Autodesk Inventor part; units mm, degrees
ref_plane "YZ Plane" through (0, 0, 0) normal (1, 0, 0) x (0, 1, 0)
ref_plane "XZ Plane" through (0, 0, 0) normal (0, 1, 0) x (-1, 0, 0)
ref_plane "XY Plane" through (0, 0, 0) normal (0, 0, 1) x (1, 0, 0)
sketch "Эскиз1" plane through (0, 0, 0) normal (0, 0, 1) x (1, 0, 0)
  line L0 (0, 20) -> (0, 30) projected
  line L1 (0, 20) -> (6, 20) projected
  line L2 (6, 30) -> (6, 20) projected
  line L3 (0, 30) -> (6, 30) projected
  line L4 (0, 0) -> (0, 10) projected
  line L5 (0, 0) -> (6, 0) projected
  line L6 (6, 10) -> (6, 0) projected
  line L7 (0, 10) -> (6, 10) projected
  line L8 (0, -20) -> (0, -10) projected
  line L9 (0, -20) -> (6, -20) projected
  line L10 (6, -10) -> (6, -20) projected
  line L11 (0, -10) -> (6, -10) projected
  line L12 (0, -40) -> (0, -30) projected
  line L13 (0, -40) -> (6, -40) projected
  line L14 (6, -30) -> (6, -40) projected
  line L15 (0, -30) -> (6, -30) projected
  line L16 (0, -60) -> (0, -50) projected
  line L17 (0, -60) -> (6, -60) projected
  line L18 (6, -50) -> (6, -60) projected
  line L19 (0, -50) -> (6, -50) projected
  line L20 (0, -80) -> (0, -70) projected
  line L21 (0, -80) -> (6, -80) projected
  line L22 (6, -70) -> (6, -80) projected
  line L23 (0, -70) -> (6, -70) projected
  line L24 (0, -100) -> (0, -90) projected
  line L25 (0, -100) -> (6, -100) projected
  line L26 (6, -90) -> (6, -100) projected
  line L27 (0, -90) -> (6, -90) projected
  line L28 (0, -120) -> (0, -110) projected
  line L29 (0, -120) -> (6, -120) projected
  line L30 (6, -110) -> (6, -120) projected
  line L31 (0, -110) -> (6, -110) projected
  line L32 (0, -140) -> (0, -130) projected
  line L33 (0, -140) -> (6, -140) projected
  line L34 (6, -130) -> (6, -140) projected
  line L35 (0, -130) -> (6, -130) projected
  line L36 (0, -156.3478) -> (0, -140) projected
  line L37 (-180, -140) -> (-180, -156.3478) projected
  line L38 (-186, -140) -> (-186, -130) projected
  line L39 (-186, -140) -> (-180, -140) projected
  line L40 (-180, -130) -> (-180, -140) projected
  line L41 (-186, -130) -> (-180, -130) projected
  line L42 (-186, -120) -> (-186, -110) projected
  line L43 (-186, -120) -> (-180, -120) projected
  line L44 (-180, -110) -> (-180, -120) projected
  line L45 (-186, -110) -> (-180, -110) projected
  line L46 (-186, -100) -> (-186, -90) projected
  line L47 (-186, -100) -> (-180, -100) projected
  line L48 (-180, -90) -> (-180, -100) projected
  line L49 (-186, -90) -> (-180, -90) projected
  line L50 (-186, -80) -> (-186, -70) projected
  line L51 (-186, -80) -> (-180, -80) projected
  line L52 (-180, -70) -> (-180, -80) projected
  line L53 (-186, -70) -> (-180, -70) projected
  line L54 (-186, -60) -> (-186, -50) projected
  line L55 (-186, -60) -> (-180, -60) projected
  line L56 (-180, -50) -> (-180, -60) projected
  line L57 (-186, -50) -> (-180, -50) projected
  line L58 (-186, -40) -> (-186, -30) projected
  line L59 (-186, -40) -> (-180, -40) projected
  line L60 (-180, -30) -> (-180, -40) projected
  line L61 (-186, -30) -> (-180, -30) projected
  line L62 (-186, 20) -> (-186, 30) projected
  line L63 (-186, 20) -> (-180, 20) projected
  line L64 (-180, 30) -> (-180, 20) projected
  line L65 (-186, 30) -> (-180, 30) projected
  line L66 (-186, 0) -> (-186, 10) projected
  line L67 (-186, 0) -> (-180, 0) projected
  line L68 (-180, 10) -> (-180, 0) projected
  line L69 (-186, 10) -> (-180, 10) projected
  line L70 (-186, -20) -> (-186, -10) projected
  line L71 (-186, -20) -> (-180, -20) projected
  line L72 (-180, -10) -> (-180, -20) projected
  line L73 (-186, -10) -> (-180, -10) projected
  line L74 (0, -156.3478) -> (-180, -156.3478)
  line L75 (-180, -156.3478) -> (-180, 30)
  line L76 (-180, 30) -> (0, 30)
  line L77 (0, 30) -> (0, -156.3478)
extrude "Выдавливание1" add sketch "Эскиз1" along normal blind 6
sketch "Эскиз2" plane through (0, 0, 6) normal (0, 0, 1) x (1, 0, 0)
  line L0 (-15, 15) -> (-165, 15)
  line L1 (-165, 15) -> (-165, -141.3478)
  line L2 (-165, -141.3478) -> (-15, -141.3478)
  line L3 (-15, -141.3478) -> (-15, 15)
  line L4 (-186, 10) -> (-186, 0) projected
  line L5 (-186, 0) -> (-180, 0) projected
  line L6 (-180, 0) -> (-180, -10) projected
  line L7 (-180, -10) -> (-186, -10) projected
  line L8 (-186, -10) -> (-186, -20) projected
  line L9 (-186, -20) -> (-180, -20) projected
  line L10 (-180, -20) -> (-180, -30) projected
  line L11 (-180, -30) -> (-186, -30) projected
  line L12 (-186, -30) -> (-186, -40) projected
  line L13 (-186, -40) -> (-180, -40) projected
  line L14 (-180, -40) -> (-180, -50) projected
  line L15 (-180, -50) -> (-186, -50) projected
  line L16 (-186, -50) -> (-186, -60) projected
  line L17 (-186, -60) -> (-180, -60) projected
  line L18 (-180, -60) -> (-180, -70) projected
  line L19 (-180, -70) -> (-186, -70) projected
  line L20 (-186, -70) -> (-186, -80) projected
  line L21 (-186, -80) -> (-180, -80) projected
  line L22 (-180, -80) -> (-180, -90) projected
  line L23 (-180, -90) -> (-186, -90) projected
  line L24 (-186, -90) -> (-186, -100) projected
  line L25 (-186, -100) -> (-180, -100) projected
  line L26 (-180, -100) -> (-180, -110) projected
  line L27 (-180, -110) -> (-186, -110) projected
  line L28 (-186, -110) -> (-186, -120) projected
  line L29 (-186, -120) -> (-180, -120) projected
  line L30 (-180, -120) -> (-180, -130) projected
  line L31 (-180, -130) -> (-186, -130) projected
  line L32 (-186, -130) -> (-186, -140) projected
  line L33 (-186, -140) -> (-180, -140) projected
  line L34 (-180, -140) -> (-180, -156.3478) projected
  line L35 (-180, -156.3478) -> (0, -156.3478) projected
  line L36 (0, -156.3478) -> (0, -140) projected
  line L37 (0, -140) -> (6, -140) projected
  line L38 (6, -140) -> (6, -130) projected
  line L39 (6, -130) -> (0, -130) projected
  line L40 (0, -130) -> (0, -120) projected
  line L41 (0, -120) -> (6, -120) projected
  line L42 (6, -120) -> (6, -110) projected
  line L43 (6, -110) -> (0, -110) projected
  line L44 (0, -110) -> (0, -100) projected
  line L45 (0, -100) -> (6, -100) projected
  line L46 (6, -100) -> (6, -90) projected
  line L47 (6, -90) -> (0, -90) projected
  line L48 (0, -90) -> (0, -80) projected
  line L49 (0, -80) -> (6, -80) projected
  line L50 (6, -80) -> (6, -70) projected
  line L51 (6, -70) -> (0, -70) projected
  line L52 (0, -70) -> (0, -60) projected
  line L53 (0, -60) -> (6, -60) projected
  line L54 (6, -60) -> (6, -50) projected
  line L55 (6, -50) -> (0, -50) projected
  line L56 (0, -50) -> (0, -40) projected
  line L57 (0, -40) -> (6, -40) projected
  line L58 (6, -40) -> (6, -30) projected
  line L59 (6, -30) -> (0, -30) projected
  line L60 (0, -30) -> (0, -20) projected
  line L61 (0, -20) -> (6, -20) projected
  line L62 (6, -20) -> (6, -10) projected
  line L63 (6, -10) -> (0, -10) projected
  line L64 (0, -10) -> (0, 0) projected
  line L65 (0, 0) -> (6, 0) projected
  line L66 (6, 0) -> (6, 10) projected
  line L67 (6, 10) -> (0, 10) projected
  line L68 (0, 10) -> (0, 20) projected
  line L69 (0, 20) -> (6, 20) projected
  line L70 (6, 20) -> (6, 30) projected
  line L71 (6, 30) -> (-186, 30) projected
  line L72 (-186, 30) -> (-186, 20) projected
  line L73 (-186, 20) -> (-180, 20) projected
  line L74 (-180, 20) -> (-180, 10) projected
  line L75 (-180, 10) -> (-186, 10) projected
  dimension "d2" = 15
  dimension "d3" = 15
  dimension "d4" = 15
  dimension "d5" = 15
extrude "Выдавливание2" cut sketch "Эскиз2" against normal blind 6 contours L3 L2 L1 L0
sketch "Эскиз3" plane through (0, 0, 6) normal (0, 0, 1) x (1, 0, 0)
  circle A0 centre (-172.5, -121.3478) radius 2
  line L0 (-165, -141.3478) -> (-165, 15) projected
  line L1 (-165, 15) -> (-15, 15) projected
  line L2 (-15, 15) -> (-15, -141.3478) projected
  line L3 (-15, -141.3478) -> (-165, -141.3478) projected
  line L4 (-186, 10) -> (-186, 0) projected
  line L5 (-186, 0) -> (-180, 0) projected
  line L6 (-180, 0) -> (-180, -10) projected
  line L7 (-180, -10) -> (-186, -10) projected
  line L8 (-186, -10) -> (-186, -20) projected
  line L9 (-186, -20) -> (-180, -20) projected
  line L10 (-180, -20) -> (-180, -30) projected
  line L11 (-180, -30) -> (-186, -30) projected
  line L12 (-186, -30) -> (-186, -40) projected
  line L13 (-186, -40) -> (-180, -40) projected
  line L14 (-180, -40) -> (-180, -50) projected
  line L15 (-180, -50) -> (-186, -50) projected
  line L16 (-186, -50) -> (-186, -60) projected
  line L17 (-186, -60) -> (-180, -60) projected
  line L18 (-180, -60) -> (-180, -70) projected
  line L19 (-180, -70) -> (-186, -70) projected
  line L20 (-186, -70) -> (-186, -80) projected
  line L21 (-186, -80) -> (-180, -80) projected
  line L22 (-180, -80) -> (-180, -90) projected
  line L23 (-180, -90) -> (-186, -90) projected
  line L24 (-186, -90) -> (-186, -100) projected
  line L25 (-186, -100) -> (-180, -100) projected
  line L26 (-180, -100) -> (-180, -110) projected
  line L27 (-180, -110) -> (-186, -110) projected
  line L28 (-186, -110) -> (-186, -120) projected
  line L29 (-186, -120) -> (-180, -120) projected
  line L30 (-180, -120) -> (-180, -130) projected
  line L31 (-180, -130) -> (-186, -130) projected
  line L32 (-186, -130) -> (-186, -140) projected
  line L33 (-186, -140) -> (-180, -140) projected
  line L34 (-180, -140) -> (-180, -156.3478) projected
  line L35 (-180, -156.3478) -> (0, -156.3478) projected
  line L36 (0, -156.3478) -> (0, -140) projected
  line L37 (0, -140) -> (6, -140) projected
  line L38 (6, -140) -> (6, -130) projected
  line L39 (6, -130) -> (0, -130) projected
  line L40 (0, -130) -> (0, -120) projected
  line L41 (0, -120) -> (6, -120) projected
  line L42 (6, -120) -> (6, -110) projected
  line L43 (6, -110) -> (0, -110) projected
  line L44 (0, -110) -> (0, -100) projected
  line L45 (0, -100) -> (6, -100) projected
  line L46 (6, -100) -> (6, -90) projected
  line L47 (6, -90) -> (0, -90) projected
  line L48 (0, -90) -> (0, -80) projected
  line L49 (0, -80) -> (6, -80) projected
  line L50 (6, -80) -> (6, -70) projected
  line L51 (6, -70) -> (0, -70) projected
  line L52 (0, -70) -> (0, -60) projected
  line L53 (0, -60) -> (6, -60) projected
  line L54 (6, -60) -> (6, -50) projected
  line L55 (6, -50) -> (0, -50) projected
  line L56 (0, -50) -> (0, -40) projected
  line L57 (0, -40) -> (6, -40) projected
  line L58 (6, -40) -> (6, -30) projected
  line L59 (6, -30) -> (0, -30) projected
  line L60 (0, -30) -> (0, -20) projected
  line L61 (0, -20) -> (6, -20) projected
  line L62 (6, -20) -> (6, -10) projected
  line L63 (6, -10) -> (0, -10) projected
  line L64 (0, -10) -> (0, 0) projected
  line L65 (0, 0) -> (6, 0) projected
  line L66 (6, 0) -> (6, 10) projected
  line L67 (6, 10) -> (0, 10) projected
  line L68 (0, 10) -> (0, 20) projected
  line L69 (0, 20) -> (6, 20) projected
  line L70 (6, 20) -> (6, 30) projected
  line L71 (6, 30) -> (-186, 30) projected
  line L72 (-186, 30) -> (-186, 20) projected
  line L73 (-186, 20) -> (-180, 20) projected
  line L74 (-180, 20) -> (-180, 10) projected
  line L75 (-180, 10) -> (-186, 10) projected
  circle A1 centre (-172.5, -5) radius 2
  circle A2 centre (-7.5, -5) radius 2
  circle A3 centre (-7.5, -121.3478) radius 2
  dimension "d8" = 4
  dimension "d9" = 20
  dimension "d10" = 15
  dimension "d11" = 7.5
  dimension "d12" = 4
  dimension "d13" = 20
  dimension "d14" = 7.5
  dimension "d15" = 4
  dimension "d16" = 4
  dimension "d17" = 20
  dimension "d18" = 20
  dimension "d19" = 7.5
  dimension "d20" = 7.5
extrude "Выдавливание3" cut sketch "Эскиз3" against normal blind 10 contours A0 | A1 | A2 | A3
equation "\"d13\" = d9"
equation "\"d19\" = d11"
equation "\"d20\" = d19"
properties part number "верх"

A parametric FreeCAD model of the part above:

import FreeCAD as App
import Part
import Sketcher
from FreeCAD import Vector

doc = App.newDocument("Part")
body = doc.addObject("PartDesign::Body", "Body")

# Sketch on XY plane
sketch1 = body.newObject("Sketcher::SketchObject", "Sketch")
sketch1.AttachmentSupport = (doc.getObject("XY_Plane"), [""])
sketch1.MapMode = "FlatFace"
sketch1.addGeometry(Part.LineSegment(Vector(0, 10, 0), Vector(0, 20, 0)), False)
sketch1.addGeometry(Part.LineSegment(Vector(0, 20, 0), Vector(6, 20, 0)), False)
sketch1.addGeometry(Part.LineSegment(Vector(6, 20, 0), Vector(6, 30, 0)), False)
sketch1.addGeometry(Part.LineSegment(Vector(6, 30, 0), Vector(-186, 30, 0)), False)
sketch1.addGeometry(Part.LineSegment(Vector(-186, 30, 0), Vector(-186, 20, 0)), False)
sketch1.addGeometry(Part.LineSegment(Vector(-186, 20, 0), Vector(-180, 20, 0)), False)
sketch1.addGeometry(Part.LineSegment(Vector(-180, 20, 0), Vector(-180, 10, 0)), False)
sketch1.addGeometry(Part.LineSegment(Vector(-180, 10, 0), Vector(-186, 10, 0)), False)
sketch1.addGeometry(Part.LineSegment(Vector(-186, 10, 0), Vector(-186, 0, 0)), False)
sketch1.addGeometry(Part.LineSegment(Vector(-186, 0, 0), Vector(-180, 0, 0)), False)
sketch1.addGeometry(Part.LineSegment(Vector(-180, 0, 0), Vector(-180, -10, 0)), False)
sketch1.addGeometry(Part.LineSegment(Vector(-180, -10, 0), Vector(-186, -10, 0)), False)
sketch1.addGeometry(Part.LineSegment(Vector(-186, -10, 0), Vector(-186, -20, 0)), False)
sketch1.addGeometry(Part.LineSegment(Vector(-186, -20, 0), Vector(-180, -20, 0)), False)
sketch1.addGeometry(Part.LineSegment(Vector(-180, -20, 0), Vector(-180, -30, 0)), False)
sketch1.addGeometry(Part.LineSegment(Vector(-180, -30, 0), Vector(-186, -30, 0)), False)
sketch1.addGeometry(Part.LineSegment(Vector(-186, -30, 0), Vector(-186, -40, 0)), False)
sketch1.addGeometry(Part.LineSegment(Vector(-186, -40, 0), Vector(-180, -40, 0)), False)
sketch1.addGeometry(Part.LineSegment(Vector(-180, -40, 0), Vector(-180, -50, 0)), False)
sketch1.addGeometry(Part.LineSegment(Vector(-180, -50, 0), Vector(-186, -50, 0)), False)
sketch1.addGeometry(Part.LineSegment(Vector(-186, -50, 0), Vector(-186, -60, 0)), False)
sketch1.addGeometry(Part.LineSegment(Vector(-186, -60, 0), Vector(-180, -60, 0)), False)
sketch1.addGeometry(Part.LineSegment(Vector(-180, -60, 0), Vector(-180, -70, 0)), False)
sketch1.addGeometry(Part.LineSegment(Vector(-180, -70, 0), Vector(-186, -70, 0)), False)
sketch1.addGeometry(Part.LineSegment(Vector(-186, -70, 0), Vector(-186, -80, 0)), False)
sketch1.addGeometry(Part.LineSegment(Vector(-186, -80, 0), Vector(-180, -80, 0)), False)
sketch1.addGeometry(Part.LineSegment(Vector(-180, -80, 0), Vector(-180, -90, 0)), False)
sketch1.addGeometry(Part.LineSegment(Vector(-180, -90, 0), Vector(-186, -90, 0)), False)
sketch1.addGeometry(Part.LineSegment(Vector(-186, -90, 0), Vector(-186, -100, 0)), False)
sketch1.addGeometry(Part.LineSegment(Vector(-186, -100, 0), Vector(-180, -100, 0)), False)
sketch1.addGeometry(Part.LineSegment(Vector(-180, -100, 0), Vector(-180, -110, 0)), False)
sketch1.addGeometry(Part.LineSegment(Vector(-180, -110, 0), Vector(-186, -110, 0)), False)
sketch1.addGeometry(Part.LineSegment(Vector(-186, -110, 0), Vector(-186, -120, 0)), False)
sketch1.addGeometry(Part.LineSegment(Vector(-186, -120, 0), Vector(-180, -120, 0)), False)
sketch1.addGeometry(Part.LineSegment(Vector(-180, -120, 0), Vector(-180, -130, 0)), False)
sketch1.addGeometry(Part.LineSegment(Vector(-180, -130, 0), Vector(-186, -130, 0)), False)
sketch1.addGeometry(Part.LineSegment(Vector(-186, -130, 0), Vector(-186, -140, 0)), False)
sketch1.addGeometry(Part.LineSegment(Vector(-186, -140, 0), Vector(-180, -140, 0)), False)
sketch1.addGeometry(Part.LineSegment(Vector(-180, -140, 0), Vector(-180, -156.3478, 0)), False)
sketch1.addGeometry(Part.LineSegment(Vector(-180, -156.3478, 0), Vector(0, -156.3478, 0)), False)
sketch1.addGeometry(Part.LineSegment(Vector(0, -156.3478, 0), Vector(0, -140, 0)), False)
sketch1.addGeometry(Part.LineSegment(Vector(0, -140, 0), Vector(6, -140, 0)), False)
sketch1.addGeometry(Part.LineSegment(Vector(6, -140, 0), Vector(6, -130, 0)), False)
sketch1.addGeometry(Part.LineSegment(Vector(6, -130, 0), Vector(0, -130, 0)), False)
sketch1.addGeometry(Part.LineSegment(Vector(0, -130, 0), Vector(0, -120, 0)), False)
sketch1.addGeometry(Part.LineSegment(Vector(0, -120, 0), Vector(6, -120, 0)), False)
sketch1.addGeometry(Part.LineSegment(Vector(6, -120, 0), Vector(6, -110, 0)), False)
sketch1.addGeometry(Part.LineSegment(Vector(6, -110, 0), Vector(0, -110, 0)), False)
sketch1.addGeometry(Part.LineSegment(Vector(0, -110, 0), Vector(0, -100, 0)), False)
sketch1.addGeometry(Part.LineSegment(Vector(0, -100, 0), Vector(6, -100, 0)), False)
sketch1.addGeometry(Part.LineSegment(Vector(6, -100, 0), Vector(6, -90, 0)), False)
sketch1.addGeometry(Part.LineSegment(Vector(6, -90, 0), Vector(0, -90, 0)), False)
sketch1.addGeometry(Part.LineSegment(Vector(0, -90, 0), Vector(0, -80, 0)), False)
sketch1.addGeometry(Part.LineSegment(Vector(0, -80, 0), Vector(6, -80, 0)), False)
sketch1.addGeometry(Part.LineSegment(Vector(6, -80, 0), Vector(6, -70, 0)), False)
sketch1.addGeometry(Part.LineSegment(Vector(6, -70, 0), Vector(0, -70, 0)), False)
sketch1.addGeometry(Part.LineSegment(Vector(0, -70, 0), Vector(0, -60, 0)), False)
sketch1.addGeometry(Part.LineSegment(Vector(0, -60, 0), Vector(6, -60, 0)), False)
sketch1.addGeometry(Part.LineSegment(Vector(6, -60, 0), Vector(6, -50, 0)), False)
sketch1.addGeometry(Part.LineSegment(Vector(6, -50, 0), Vector(0, -50, 0)), False)
sketch1.addGeometry(Part.LineSegment(Vector(0, -50, 0), Vector(0, -40, 0)), False)
sketch1.addGeometry(Part.LineSegment(Vector(0, -40, 0), Vector(6, -40, 0)), False)
sketch1.addGeometry(Part.LineSegment(Vector(6, -40, 0), Vector(6, -30, 0)), False)
sketch1.addGeometry(Part.LineSegment(Vector(6, -30, 0), Vector(0, -30, 0)), False)
sketch1.addGeometry(Part.LineSegment(Vector(0, -30, 0), Vector(0, -20, 0)), False)
sketch1.addGeometry(Part.LineSegment(Vector(0, -20, 0), Vector(6, -20, 0)), False)
sketch1.addGeometry(Part.LineSegment(Vector(6, -20, 0), Vector(6, -10, 0)), False)
sketch1.addGeometry(Part.LineSegment(Vector(6, -10, 0), Vector(0, -10, 0)), False)
sketch1.addGeometry(Part.LineSegment(Vector(0, -10, 0), Vector(0, 0, 0)), False)
sketch1.addGeometry(Part.LineSegment(Vector(0, 0, 0), Vector(6, 0, 0)), False)
sketch1.addGeometry(Part.LineSegment(Vector(6, 0, 0), Vector(6, 10, 0)), False)
sketch1.addGeometry(Part.LineSegment(Vector(6, 10, 0), Vector(0, 10, 0)), False)
sketch1.addConstraint(Sketcher.Constraint("Coincident", 0, 2, 1, 1))
sketch1.addConstraint(Sketcher.Constraint("Coincident", 1, 2, 2, 1))
sketch1.addConstraint(Sketcher.Constraint("Coincident", 2, 2, 3, 1))
sketch1.addConstraint(Sketcher.Constraint("Coincident", 3, 2, 4, 1))
sketch1.addConstraint(Sketcher.Constraint("Coincident", 4, 2, 5, 1))
sketch1.addConstraint(Sketcher.Constraint("Coincident", 5, 2, 6, 1))
sketch1.addConstraint(Sketcher.Constraint("Coincident", 6, 2, 7, 1))
sketch1.addConstraint(Sketcher.Constraint("Coincident", 7, 2, 8, 1))
sketch1.addConstraint(Sketcher.Constraint("Coincident", 8, 2, 9, 1))
sketch1.addConstraint(Sketcher.Constraint("Coincident", 9, 2, 10, 1))
sketch1.addConstraint(Sketcher.Constraint("Coincident", 10, 2, 11, 1))
sketch1.addConstraint(Sketcher.Constraint("Coincident", 11, 2, 12, 1))
sketch1.addConstraint(Sketcher.Constraint("Coincident", 12, 2, 13, 1))
sketch1.addConstraint(Sketcher.Constraint("Coincident", 13, 2, 14, 1))
sketch1.addConstraint(Sketcher.Constraint("Coincident", 14, 2, 15, 1))
sketch1.addConstraint(Sketcher.Constraint("Coincident", 15, 2, 16, 1))
sketch1.addConstraint(Sketcher.Constraint("Coincident", 16, 2, 17, 1))
sketch1.addConstraint(Sketcher.Constraint("Coincident", 17, 2, 18, 1))
sketch1.addConstraint(Sketcher.Constraint("Coincident", 18, 2, 19, 1))
sketch1.addConstraint(Sketcher.Constraint("Coincident", 19, 2, 20, 1))
sketch1.addConstraint(Sketcher.Constraint("Coincident", 20, 2, 21, 1))
sketch1.addConstraint(Sketcher.Constraint("Coincident", 21, 2, 22, 1))
sketch1.addConstraint(Sketcher.Constraint("Coincident", 22, 2, 23, 1))
sketch1.addConstraint(Sketcher.Constraint("Coincident", 23, 2, 24, 1))
sketch1.addConstraint(Sketcher.Constraint("Coincident", 24, 2, 25, 1))
sketch1.addConstraint(Sketcher.Constraint("Coincident", 25, 2, 26, 1))
sketch1.addConstraint(Sketcher.Constraint("Coincident", 26, 2, 27, 1))
sketch1.addConstraint(Sketcher.Constraint("Coincident", 27, 2, 28, 1))
sketch1.addConstraint(Sketcher.Constraint("Coincident", 28, 2, 29, 1))
sketch1.addConstraint(Sketcher.Constraint("Coincident", 29, 2, 30, 1))
sketch1.addConstraint(Sketcher.Constraint("Coincident", 30, 2, 31, 1))
sketch1.addConstraint(Sketcher.Constraint("Coincident", 31, 2, 32, 1))
sketch1.addConstraint(Sketcher.Constraint("Coincident", 32, 2, 33, 1))
sketch1.addConstraint(Sketcher.Constraint("Coincident", 33, 2, 34, 1))
sketch1.addConstraint(Sketcher.Constraint("Coincident", 34, 2, 35, 1))
sketch1.addConstraint(Sketcher.Constraint("Coincident", 35, 2, 36, 1))
sketch1.addConstraint(Sketcher.Constraint("Coincident", 36, 2, 37, 1))
sketch1.addConstraint(Sketcher.Constraint("Coincident", 37, 2, 38, 1))
sketch1.addConstraint(Sketcher.Constraint("Coincident", 38, 2, 39, 1))
sketch1.addConstraint(Sketcher.Constraint("Coincident", 39, 2, 40, 1))
sketch1.addConstraint(Sketcher.Constraint("Coincident", 40, 2, 41, 1))
sketch1.addConstraint(Sketcher.Constraint("Coincident", 41, 2, 42, 1))
sketch1.addConstraint(Sketcher.Constraint("Coincident", 42, 2, 43, 1))
sketch1.addConstraint(Sketcher.Constraint("Coincident", 43, 2, 44, 1))
sketch1.addConstraint(Sketcher.Constraint("Coincident", 44, 2, 45, 1))
sketch1.addConstraint(Sketcher.Constraint("Coincident", 45, 2, 46, 1))
sketch1.addConstraint(Sketcher.Constraint("Coincident", 46, 2, 47, 1))
sketch1.addConstraint(Sketcher.Constraint("Coincident", 47, 2, 48, 1))
sketch1.addConstraint(Sketcher.Constraint("Coincident", 48, 2, 49, 1))
sketch1.addConstraint(Sketcher.Constraint("Coincident", 49, 2, 50, 1))
sketch1.addConstraint(Sketcher.Constraint("Coincident", 50, 2, 51, 1))
sketch1.addConstraint(Sketcher.Constraint("Coincident", 51, 2, 52, 1))
sketch1.addConstraint(Sketcher.Constraint("Coincident", 52, 2, 53, 1))
sketch1.addConstraint(Sketcher.Constraint("Coincident", 53, 2, 54, 1))
sketch1.addConstraint(Sketcher.Constraint("Coincident", 54, 2, 55, 1))
sketch1.addConstraint(Sketcher.Constraint("Coincident", 55, 2, 56, 1))
sketch1.addConstraint(Sketcher.Constraint("Coincident", 56, 2, 57, 1))
sketch1.addConstraint(Sketcher.Constraint("Coincident", 57, 2, 58, 1))
sketch1.addConstraint(Sketcher.Constraint("Coincident", 58, 2, 59, 1))
sketch1.addConstraint(Sketcher.Constraint("Coincident", 59, 2, 60, 1))
sketch1.addConstraint(Sketcher.Constraint("Coincident", 60, 2, 61, 1))
sketch1.addConstraint(Sketcher.Constraint("Coincident", 61, 2, 62, 1))
sketch1.addConstraint(Sketcher.Constraint("Coincident", 62, 2, 63, 1))
sketch1.addConstraint(Sketcher.Constraint("Coincident", 63, 2, 64, 1))
sketch1.addConstraint(Sketcher.Constraint("Coincident", 64, 2, 65, 1))
sketch1.addConstraint(Sketcher.Constraint("Coincident", 65, 2, 66, 1))
sketch1.addConstraint(Sketcher.Constraint("Coincident", 66, 2, 67, 1))
sketch1.addConstraint(Sketcher.Constraint("Coincident", 67, 2, 68, 1))
sketch1.addConstraint(Sketcher.Constraint("Coincident", 68, 2, 69, 1))
sketch1.addConstraint(Sketcher.Constraint("Coincident", 69, 2, 70, 1))
sketch1.addConstraint(Sketcher.Constraint("Coincident", 70, 2, 71, 1))
sketch1.addConstraint(Sketcher.Constraint("Coincident", 71, 2, 0, 1))
sketch1.addConstraint(Sketcher.Constraint("Vertical", 0))
sketch1.addConstraint(Sketcher.Constraint("Horizontal", 1))
sketch1.addConstraint(Sketcher.Constraint("Vertical", 2))
sketch1.addConstraint(Sketcher.Constraint("Horizontal", 3))
sketch1.addConstraint(Sketcher.Constraint("Vertical", 4))
sketch1.addConstraint(Sketcher.Constraint("Horizontal", 5))
sketch1.addConstraint(Sketcher.Constraint("Vertical", 6))
sketch1.addConstraint(Sketcher.Constraint("Horizontal", 7))
sketch1.addConstraint(Sketcher.Constraint("Vertical", 8))
sketch1.addConstraint(Sketcher.Constraint("Horizontal", 9))
sketch1.addConstraint(Sketcher.Constraint("Vertical", 10))
sketch1.addConstraint(Sketcher.Constraint("Horizontal", 11))
sketch1.addConstraint(Sketcher.Constraint("Vertical", 12))
sketch1.addConstraint(Sketcher.Constraint("Horizontal", 13))
sketch1.addConstraint(Sketcher.Constraint("Vertical", 14))
sketch1.addConstraint(Sketcher.Constraint("Horizontal", 15))
sketch1.addConstraint(Sketcher.Constraint("Vertical", 16))
sketch1.addConstraint(Sketcher.Constraint("Horizontal", 17))
sketch1.addConstraint(Sketcher.Constraint("Vertical", 18))
sketch1.addConstraint(Sketcher.Constraint("Horizontal", 19))
sketch1.addConstraint(Sketcher.Constraint("Vertical", 20))
sketch1.addConstraint(Sketcher.Constraint("Horizontal", 21))
sketch1.addConstraint(Sketcher.Constraint("Vertical", 22))
sketch1.addConstraint(Sketcher.Constraint("Horizontal", 23))
sketch1.addConstraint(Sketcher.Constraint("Vertical", 24))
sketch1.addConstraint(Sketcher.Constraint("Horizontal", 25))
sketch1.addConstraint(Sketcher.Constraint("Vertical", 26))
sketch1.addConstraint(Sketcher.Constraint("Horizontal", 27))
sketch1.addConstraint(Sketcher.Constraint("Vertical", 28))
sketch1.addConstraint(Sketcher.Constraint("Horizontal", 29))
sketch1.addConstraint(Sketcher.Constraint("Vertical", 30))
sketch1.addConstraint(Sketcher.Constraint("Horizontal", 31))
sketch1.addConstraint(Sketcher.Constraint("Vertical", 32))
sketch1.addConstraint(Sketcher.Constraint("Horizontal", 33))
sketch1.addConstraint(Sketcher.Constraint("Vertical", 34))
sketch1.addConstraint(Sketcher.Constraint("Horizontal", 35))
sketch1.addConstraint(Sketcher.Constraint("Vertical", 36))
sketch1.addConstraint(Sketcher.Constraint("Horizontal", 37))
sketch1.addConstraint(Sketcher.Constraint("Vertical", 38))
sketch1.addConstraint(Sketcher.Constraint("Horizontal", 39))
sketch1.addConstraint(Sketcher.Constraint("Vertical", 40))
sketch1.addConstraint(Sketcher.Constraint("Horizontal", 41))
sketch1.addConstraint(Sketcher.Constraint("Vertical", 42))
sketch1.addConstraint(Sketcher.Constraint("Horizontal", 43))
sketch1.addConstraint(Sketcher.Constraint("Vertical", 44))
sketch1.addConstraint(Sketcher.Constraint("Horizontal", 45))
sketch1.addConstraint(Sketcher.Constraint("Vertical", 46))
sketch1.addConstraint(Sketcher.Constraint("Horizontal", 47))
sketch1.addConstraint(Sketcher.Constraint("Vertical", 48))
sketch1.addConstraint(Sketcher.Constraint("Horizontal", 49))
sketch1.addConstraint(Sketcher.Constraint("Vertical", 50))
sketch1.addConstraint(Sketcher.Constraint("Horizontal", 51))
sketch1.addConstraint(Sketcher.Constraint("Vertical", 52))
sketch1.addConstraint(Sketcher.Constraint("Horizontal", 53))
sketch1.addConstraint(Sketcher.Constraint("Vertical", 54))
sketch1.addConstraint(Sketcher.Constraint("Horizontal", 55))
sketch1.addConstraint(Sketcher.Constraint("Vertical", 56))
sketch1.addConstraint(Sketcher.Constraint("Horizontal", 57))
sketch1.addConstraint(Sketcher.Constraint("Vertical", 58))
sketch1.addConstraint(Sketcher.Constraint("Horizontal", 59))
sketch1.addConstraint(Sketcher.Constraint("Vertical", 60))
sketch1.addConstraint(Sketcher.Constraint("Horizontal", 61))
sketch1.addConstraint(Sketcher.Constraint("Vertical", 62))
sketch1.addConstraint(Sketcher.Constraint("Horizontal", 63))
sketch1.addConstraint(Sketcher.Constraint("Vertical", 64))
sketch1.addConstraint(Sketcher.Constraint("Horizontal", 65))
sketch1.addConstraint(Sketcher.Constraint("Vertical", 66))
sketch1.addConstraint(Sketcher.Constraint("Horizontal", 67))
sketch1.addConstraint(Sketcher.Constraint("Vertical", 68))
sketch1.addConstraint(Sketcher.Constraint("Horizontal", 69))
sketch1.addConstraint(Sketcher.Constraint("Vertical", 70))
sketch1.addConstraint(Sketcher.Constraint("Horizontal", 71))
sketch1.addConstraint(Sketcher.Constraint("Coincident", 68, 2, -1, 1))
sketch1.addConstraint(Sketcher.Constraint("Symmetric", 0, 2, 64, 2, -1, 1))
sketch1.addConstraint(Sketcher.Constraint("Symmetric", 67, 2, 71, 2, -1, 1))
sketch1.addConstraint(Sketcher.Constraint("Symmetric", 6, 2, 10, 2, -1))
sketch1.addConstraint(Sketcher.Constraint("Symmetric", 4, 2, 12, 2, -1))
sketch1.addConstraint(Sketcher.Constraint("Symmetric", 3, 2, 15, 2, -1))
sketch1.addConstraint(Sketcher.Constraint("Symmetric", 2, 2, 62, 2, -1))
sketch1.addConstraint(Sketcher.Constraint("PointOnObject", 8, 2, -1))
sketch1.addConstraint(Sketcher.Constraint("PointOnObject", 39, 2, -2))
sketch1.addConstraint(Sketcher.Constraint("PointOnObject", 43, 2, -2))
sketch1.addConstraint(Sketcher.Constraint("PointOnObject", 47, 2, -2))
sketch1.addConstraint(Sketcher.Constraint("PointOnObject", 51, 2, -2))
sketch1.addConstraint(Sketcher.Constraint("PointOnObject", 55, 2, -2))
sketch1.addConstraint(Sketcher.Constraint("PointOnObject", 59, 2, -2))
sketch1.addConstraint(Sketcher.Constraint("Horizontal", 1, 2, 4, 2))
sketch1.addConstraint(Sketcher.Constraint("Horizontal", 37, 2, 40, 2))
sketch1.addConstraint(Sketcher.Constraint("Horizontal", 35, 2, 42, 2))
sketch1.addConstraint(Sketcher.Constraint("Horizontal", 33, 2, 44, 2))
sketch1.addConstraint(Sketcher.Constraint("Horizontal", 31, 2, 46, 2))
sketch1.addConstraint(Sketcher.Constraint("Horizontal", 29, 2, 48, 2))
sketch1.addConstraint(Sketcher.Constraint("Horizontal", 27, 2, 50, 2))
sketch1.addConstraint(Sketcher.Constraint("Horizontal", 25, 2, 52, 2))
sketch1.addConstraint(Sketcher.Constraint("Horizontal", 23, 2, 54, 2))
sketch1.addConstraint(Sketcher.Constraint("Horizontal", 21, 2, 56, 2))
sketch1.addConstraint(Sketcher.Constraint("Horizontal", 19, 2, 58, 2))
sketch1.addConstraint(Sketcher.Constraint("Horizontal", 17, 2, 60, 2))
sketch1.addConstraint(Sketcher.Constraint("Horizontal", 11, 2, 66, 2))
sketch1.addConstraint(Sketcher.Constraint("Vertical", 4, 2, 7, 2))
sketch1.addConstraint(Sketcher.Constraint("Vertical", 10, 2, 13, 2))
sketch1.addConstraint(Sketcher.Constraint("Vertical", 14, 2, 17, 2))
sketch1.addConstraint(Sketcher.Constraint("Vertical", 16, 2, 19, 2))
sketch1.addConstraint(Sketcher.Constraint("Vertical", 18, 2, 21, 2))
sketch1.addConstraint(Sketcher.Constraint("Vertical", 20, 2, 23, 2))
sketch1.addConstraint(Sketcher.Constraint("Vertical", 22, 2, 25, 2))
sketch1.addConstraint(Sketcher.Constraint("Vertical", 24, 2, 27, 2))
sketch1.addConstraint(Sketcher.Constraint("Vertical", 26, 2, 29, 2))
sketch1.addConstraint(Sketcher.Constraint("Vertical", 28, 2, 31, 2))
sketch1.addConstraint(Sketcher.Constraint("Vertical", 30, 2, 33, 2))
sketch1.addConstraint(Sketcher.Constraint("Vertical", 32, 2, 35, 2))
sketch1.addConstraint(Sketcher.Constraint("Vertical", 34, 2, 37, 2))
sketch1.addConstraint(Sketcher.Constraint("Vertical", 2, 2, 41, 2))
sketch1.addConstraint(Sketcher.Constraint("Vertical", 42, 2, 45, 2))
sketch1.addConstraint(Sketcher.Constraint("Vertical", 46, 2, 49, 2))
sketch1.addConstraint(Sketcher.Constraint("Vertical", 50, 2, 53, 2))
sketch1.addConstraint(Sketcher.Constraint("Vertical", 54, 2, 57, 2))
sketch1.addConstraint(Sketcher.Constraint("Vertical", 62, 2, 65, 2))
sketch1.addConstraint(Sketcher.Constraint("Vertical", 66, 2, 69, 2))
sketch1.addConstraint(Sketcher.Constraint("Equal", 1, 5))
sketch1.addConstraint(Sketcher.Constraint("Equal", 0, 2))
sketch1.addConstraint(Sketcher.Constraint("Equal", 6, 8))
sketch1.addConstraint(Sketcher.Constraint("Equal", 14, 16))
sketch1.addConstraint(Sketcher.Constraint("Equal", 16, 18))
sketch1.addConstraint(Sketcher.Constraint("Equal", 18, 20))
sketch1.addConstraint(Sketcher.Constraint("Equal", 20, 22))
sketch1.addConstraint(Sketcher.Constraint("Equal", 22, 24))
sketch1.addConstraint(Sketcher.Constraint("Equal", 24, 26))
sketch1.addConstraint(Sketcher.Constraint("Equal", 26, 28))
sketch1.addConstraint(Sketcher.Constraint("Equal", 28, 30))
sketch1.addConstraint(Sketcher.Constraint("Equal", 30, 32))
sketch1.addConstraint(Sketcher.Constraint("Equal", 32, 34))
sketch1.addConstraint(Sketcher.Constraint("Equal", 34, 36))
sketch1.addConstraint(Sketcher.Constraint("DistanceX", 1, 1, 1, 2, 6.0))
sketch1.addConstraint(Sketcher.Constraint("DistanceX", 3, 2, 3, 1, 192.0))
sketch1.addConstraint(Sketcher.Constraint("DistanceY", 0, 1, 0, 2, 10.0))
sketch1.addConstraint(Sketcher.Constraint("DistanceY", 38, 2, 38, 1, 16.3478))
pad1 = body.newObject("PartDesign::Pad", "Pad")
pad1.Profile = sketch1
pad1.Length = 6

# Sketch on XY plane
sketch2 = body.newObject("Sketcher::SketchObject", "Sketch001")
sketch2.AttachmentSupport = (doc.getObject("XY_Plane"), [""])
sketch2.MapMode = "FlatFace"
sketch2.AttachmentOffset = App.Placement(Vector(0, 0, 6), App.Rotation())
sketch2.addGeometry(Part.LineSegment(Vector(-15, -141.3478, 0), Vector(-15, 15, 0)), False)
sketch2.addGeometry(Part.LineSegment(Vector(-15, 15, 0), Vector(-165, 15, 0)), False)
sketch2.addGeometry(Part.LineSegment(Vector(-165, 15, 0), Vector(-165, -141.3478, 0)), False)
sketch2.addGeometry(Part.LineSegment(Vector(-165, -141.3478, 0), Vector(-15, -141.3478, 0)), False)
sketch2.addConstraint(Sketcher.Constraint("Coincident", 0, 2, 1, 1))
sketch2.addConstraint(Sketcher.Constraint("Coincident", 1, 2, 2, 1))
sketch2.addConstraint(Sketcher.Constraint("Coincident", 2, 2, 3, 1))
sketch2.addConstraint(Sketcher.Constraint("Coincident", 3, 2, 0, 1))
sketch2.addConstraint(Sketcher.Constraint("Vertical", 0))
sketch2.addConstraint(Sketcher.Constraint("Horizontal", 1))
sketch2.addConstraint(Sketcher.Constraint("Vertical", 2))
sketch2.addConstraint(Sketcher.Constraint("Horizontal", 3))
sketch2.addConstraint(Sketcher.Constraint("DistanceX", 0, 2, -1, 1, 15.0))
sketch2.addConstraint(Sketcher.Constraint("DistanceY", -1, 1, 0, 2, 15.0))
sketch2.addConstraint(Sketcher.Constraint("DistanceX", 1, 2, 1, 1, 150.0))
sketch2.addConstraint(Sketcher.Constraint("DistanceY", 0, 1, 0, 2, 156.3478))
pocket1 = body.newObject("PartDesign::Pocket", "Pocket")
pocket1.Profile = sketch2
pocket1.Length = 6

# Sketch on XY plane
sketch3 = body.newObject("Sketcher::SketchObject", "Sketch002")
sketch3.AttachmentSupport = (doc.getObject("XY_Plane"), [""])
sketch3.MapMode = "FlatFace"
sketch3.AttachmentOffset = App.Placement(Vector(0, 0, 6), App.Rotation())
sketch3.addGeometry(Part.Circle(Vector(-172.5, -121.3478, 0), Vector(0, 0, 1), 2), False)
sketch3.addGeometry(Part.Circle(Vector(-172.5, -5, 0), Vector(0, 0, 1), 2), False)
sketch3.addGeometry(Part.Circle(Vector(-7.5, -5, 0), Vector(0, 0, 1), 2), False)
sketch3.addGeometry(Part.Circle(Vector(-7.5, -121.3478, 0), Vector(0, 0, 1), 2), False)
sketch3.addConstraint(Sketcher.Constraint("Equal", 0, 1))
sketch3.addConstraint(Sketcher.Constraint("Equal", 1, 2))
sketch3.addConstraint(Sketcher.Constraint("Equal", 2, 3))
sketch3.addConstraint(Sketcher.Constraint("Horizontal", 1, 3, 2, 3))
sketch3.addConstraint(Sketcher.Constraint("Horizontal", 0, 3, 3, 3))
sketch3.addConstraint(Sketcher.Constraint("Vertical", 0, 3, 1, 3))
sketch3.addConstraint(Sketcher.Constraint("Vertical", 2, 3, 3, 3))
sketch3.addConstraint(Sketcher.Constraint("Diameter", 0, 4.0))
sketch3.addConstraint(Sketcher.Constraint("DistanceX", 2, 3, -1, 1, 7.5))
sketch3.addConstraint(Sketcher.Constraint("DistanceY", 1, 3, -1, 1, 5.0))
sketch3.addConstraint(Sketcher.Constraint("DistanceX", 1, 3, 2, 3, 165.0))
sketch3.addConstraint(Sketcher.Constraint("DistanceY", 0, 3, -1, 1, 121.3478))
pocket2 = body.newObject("PartDesign::Pocket", "Pocket001")
pocket2.Profile = sketch3
pocket2.Length = 10

doc.recompute()
